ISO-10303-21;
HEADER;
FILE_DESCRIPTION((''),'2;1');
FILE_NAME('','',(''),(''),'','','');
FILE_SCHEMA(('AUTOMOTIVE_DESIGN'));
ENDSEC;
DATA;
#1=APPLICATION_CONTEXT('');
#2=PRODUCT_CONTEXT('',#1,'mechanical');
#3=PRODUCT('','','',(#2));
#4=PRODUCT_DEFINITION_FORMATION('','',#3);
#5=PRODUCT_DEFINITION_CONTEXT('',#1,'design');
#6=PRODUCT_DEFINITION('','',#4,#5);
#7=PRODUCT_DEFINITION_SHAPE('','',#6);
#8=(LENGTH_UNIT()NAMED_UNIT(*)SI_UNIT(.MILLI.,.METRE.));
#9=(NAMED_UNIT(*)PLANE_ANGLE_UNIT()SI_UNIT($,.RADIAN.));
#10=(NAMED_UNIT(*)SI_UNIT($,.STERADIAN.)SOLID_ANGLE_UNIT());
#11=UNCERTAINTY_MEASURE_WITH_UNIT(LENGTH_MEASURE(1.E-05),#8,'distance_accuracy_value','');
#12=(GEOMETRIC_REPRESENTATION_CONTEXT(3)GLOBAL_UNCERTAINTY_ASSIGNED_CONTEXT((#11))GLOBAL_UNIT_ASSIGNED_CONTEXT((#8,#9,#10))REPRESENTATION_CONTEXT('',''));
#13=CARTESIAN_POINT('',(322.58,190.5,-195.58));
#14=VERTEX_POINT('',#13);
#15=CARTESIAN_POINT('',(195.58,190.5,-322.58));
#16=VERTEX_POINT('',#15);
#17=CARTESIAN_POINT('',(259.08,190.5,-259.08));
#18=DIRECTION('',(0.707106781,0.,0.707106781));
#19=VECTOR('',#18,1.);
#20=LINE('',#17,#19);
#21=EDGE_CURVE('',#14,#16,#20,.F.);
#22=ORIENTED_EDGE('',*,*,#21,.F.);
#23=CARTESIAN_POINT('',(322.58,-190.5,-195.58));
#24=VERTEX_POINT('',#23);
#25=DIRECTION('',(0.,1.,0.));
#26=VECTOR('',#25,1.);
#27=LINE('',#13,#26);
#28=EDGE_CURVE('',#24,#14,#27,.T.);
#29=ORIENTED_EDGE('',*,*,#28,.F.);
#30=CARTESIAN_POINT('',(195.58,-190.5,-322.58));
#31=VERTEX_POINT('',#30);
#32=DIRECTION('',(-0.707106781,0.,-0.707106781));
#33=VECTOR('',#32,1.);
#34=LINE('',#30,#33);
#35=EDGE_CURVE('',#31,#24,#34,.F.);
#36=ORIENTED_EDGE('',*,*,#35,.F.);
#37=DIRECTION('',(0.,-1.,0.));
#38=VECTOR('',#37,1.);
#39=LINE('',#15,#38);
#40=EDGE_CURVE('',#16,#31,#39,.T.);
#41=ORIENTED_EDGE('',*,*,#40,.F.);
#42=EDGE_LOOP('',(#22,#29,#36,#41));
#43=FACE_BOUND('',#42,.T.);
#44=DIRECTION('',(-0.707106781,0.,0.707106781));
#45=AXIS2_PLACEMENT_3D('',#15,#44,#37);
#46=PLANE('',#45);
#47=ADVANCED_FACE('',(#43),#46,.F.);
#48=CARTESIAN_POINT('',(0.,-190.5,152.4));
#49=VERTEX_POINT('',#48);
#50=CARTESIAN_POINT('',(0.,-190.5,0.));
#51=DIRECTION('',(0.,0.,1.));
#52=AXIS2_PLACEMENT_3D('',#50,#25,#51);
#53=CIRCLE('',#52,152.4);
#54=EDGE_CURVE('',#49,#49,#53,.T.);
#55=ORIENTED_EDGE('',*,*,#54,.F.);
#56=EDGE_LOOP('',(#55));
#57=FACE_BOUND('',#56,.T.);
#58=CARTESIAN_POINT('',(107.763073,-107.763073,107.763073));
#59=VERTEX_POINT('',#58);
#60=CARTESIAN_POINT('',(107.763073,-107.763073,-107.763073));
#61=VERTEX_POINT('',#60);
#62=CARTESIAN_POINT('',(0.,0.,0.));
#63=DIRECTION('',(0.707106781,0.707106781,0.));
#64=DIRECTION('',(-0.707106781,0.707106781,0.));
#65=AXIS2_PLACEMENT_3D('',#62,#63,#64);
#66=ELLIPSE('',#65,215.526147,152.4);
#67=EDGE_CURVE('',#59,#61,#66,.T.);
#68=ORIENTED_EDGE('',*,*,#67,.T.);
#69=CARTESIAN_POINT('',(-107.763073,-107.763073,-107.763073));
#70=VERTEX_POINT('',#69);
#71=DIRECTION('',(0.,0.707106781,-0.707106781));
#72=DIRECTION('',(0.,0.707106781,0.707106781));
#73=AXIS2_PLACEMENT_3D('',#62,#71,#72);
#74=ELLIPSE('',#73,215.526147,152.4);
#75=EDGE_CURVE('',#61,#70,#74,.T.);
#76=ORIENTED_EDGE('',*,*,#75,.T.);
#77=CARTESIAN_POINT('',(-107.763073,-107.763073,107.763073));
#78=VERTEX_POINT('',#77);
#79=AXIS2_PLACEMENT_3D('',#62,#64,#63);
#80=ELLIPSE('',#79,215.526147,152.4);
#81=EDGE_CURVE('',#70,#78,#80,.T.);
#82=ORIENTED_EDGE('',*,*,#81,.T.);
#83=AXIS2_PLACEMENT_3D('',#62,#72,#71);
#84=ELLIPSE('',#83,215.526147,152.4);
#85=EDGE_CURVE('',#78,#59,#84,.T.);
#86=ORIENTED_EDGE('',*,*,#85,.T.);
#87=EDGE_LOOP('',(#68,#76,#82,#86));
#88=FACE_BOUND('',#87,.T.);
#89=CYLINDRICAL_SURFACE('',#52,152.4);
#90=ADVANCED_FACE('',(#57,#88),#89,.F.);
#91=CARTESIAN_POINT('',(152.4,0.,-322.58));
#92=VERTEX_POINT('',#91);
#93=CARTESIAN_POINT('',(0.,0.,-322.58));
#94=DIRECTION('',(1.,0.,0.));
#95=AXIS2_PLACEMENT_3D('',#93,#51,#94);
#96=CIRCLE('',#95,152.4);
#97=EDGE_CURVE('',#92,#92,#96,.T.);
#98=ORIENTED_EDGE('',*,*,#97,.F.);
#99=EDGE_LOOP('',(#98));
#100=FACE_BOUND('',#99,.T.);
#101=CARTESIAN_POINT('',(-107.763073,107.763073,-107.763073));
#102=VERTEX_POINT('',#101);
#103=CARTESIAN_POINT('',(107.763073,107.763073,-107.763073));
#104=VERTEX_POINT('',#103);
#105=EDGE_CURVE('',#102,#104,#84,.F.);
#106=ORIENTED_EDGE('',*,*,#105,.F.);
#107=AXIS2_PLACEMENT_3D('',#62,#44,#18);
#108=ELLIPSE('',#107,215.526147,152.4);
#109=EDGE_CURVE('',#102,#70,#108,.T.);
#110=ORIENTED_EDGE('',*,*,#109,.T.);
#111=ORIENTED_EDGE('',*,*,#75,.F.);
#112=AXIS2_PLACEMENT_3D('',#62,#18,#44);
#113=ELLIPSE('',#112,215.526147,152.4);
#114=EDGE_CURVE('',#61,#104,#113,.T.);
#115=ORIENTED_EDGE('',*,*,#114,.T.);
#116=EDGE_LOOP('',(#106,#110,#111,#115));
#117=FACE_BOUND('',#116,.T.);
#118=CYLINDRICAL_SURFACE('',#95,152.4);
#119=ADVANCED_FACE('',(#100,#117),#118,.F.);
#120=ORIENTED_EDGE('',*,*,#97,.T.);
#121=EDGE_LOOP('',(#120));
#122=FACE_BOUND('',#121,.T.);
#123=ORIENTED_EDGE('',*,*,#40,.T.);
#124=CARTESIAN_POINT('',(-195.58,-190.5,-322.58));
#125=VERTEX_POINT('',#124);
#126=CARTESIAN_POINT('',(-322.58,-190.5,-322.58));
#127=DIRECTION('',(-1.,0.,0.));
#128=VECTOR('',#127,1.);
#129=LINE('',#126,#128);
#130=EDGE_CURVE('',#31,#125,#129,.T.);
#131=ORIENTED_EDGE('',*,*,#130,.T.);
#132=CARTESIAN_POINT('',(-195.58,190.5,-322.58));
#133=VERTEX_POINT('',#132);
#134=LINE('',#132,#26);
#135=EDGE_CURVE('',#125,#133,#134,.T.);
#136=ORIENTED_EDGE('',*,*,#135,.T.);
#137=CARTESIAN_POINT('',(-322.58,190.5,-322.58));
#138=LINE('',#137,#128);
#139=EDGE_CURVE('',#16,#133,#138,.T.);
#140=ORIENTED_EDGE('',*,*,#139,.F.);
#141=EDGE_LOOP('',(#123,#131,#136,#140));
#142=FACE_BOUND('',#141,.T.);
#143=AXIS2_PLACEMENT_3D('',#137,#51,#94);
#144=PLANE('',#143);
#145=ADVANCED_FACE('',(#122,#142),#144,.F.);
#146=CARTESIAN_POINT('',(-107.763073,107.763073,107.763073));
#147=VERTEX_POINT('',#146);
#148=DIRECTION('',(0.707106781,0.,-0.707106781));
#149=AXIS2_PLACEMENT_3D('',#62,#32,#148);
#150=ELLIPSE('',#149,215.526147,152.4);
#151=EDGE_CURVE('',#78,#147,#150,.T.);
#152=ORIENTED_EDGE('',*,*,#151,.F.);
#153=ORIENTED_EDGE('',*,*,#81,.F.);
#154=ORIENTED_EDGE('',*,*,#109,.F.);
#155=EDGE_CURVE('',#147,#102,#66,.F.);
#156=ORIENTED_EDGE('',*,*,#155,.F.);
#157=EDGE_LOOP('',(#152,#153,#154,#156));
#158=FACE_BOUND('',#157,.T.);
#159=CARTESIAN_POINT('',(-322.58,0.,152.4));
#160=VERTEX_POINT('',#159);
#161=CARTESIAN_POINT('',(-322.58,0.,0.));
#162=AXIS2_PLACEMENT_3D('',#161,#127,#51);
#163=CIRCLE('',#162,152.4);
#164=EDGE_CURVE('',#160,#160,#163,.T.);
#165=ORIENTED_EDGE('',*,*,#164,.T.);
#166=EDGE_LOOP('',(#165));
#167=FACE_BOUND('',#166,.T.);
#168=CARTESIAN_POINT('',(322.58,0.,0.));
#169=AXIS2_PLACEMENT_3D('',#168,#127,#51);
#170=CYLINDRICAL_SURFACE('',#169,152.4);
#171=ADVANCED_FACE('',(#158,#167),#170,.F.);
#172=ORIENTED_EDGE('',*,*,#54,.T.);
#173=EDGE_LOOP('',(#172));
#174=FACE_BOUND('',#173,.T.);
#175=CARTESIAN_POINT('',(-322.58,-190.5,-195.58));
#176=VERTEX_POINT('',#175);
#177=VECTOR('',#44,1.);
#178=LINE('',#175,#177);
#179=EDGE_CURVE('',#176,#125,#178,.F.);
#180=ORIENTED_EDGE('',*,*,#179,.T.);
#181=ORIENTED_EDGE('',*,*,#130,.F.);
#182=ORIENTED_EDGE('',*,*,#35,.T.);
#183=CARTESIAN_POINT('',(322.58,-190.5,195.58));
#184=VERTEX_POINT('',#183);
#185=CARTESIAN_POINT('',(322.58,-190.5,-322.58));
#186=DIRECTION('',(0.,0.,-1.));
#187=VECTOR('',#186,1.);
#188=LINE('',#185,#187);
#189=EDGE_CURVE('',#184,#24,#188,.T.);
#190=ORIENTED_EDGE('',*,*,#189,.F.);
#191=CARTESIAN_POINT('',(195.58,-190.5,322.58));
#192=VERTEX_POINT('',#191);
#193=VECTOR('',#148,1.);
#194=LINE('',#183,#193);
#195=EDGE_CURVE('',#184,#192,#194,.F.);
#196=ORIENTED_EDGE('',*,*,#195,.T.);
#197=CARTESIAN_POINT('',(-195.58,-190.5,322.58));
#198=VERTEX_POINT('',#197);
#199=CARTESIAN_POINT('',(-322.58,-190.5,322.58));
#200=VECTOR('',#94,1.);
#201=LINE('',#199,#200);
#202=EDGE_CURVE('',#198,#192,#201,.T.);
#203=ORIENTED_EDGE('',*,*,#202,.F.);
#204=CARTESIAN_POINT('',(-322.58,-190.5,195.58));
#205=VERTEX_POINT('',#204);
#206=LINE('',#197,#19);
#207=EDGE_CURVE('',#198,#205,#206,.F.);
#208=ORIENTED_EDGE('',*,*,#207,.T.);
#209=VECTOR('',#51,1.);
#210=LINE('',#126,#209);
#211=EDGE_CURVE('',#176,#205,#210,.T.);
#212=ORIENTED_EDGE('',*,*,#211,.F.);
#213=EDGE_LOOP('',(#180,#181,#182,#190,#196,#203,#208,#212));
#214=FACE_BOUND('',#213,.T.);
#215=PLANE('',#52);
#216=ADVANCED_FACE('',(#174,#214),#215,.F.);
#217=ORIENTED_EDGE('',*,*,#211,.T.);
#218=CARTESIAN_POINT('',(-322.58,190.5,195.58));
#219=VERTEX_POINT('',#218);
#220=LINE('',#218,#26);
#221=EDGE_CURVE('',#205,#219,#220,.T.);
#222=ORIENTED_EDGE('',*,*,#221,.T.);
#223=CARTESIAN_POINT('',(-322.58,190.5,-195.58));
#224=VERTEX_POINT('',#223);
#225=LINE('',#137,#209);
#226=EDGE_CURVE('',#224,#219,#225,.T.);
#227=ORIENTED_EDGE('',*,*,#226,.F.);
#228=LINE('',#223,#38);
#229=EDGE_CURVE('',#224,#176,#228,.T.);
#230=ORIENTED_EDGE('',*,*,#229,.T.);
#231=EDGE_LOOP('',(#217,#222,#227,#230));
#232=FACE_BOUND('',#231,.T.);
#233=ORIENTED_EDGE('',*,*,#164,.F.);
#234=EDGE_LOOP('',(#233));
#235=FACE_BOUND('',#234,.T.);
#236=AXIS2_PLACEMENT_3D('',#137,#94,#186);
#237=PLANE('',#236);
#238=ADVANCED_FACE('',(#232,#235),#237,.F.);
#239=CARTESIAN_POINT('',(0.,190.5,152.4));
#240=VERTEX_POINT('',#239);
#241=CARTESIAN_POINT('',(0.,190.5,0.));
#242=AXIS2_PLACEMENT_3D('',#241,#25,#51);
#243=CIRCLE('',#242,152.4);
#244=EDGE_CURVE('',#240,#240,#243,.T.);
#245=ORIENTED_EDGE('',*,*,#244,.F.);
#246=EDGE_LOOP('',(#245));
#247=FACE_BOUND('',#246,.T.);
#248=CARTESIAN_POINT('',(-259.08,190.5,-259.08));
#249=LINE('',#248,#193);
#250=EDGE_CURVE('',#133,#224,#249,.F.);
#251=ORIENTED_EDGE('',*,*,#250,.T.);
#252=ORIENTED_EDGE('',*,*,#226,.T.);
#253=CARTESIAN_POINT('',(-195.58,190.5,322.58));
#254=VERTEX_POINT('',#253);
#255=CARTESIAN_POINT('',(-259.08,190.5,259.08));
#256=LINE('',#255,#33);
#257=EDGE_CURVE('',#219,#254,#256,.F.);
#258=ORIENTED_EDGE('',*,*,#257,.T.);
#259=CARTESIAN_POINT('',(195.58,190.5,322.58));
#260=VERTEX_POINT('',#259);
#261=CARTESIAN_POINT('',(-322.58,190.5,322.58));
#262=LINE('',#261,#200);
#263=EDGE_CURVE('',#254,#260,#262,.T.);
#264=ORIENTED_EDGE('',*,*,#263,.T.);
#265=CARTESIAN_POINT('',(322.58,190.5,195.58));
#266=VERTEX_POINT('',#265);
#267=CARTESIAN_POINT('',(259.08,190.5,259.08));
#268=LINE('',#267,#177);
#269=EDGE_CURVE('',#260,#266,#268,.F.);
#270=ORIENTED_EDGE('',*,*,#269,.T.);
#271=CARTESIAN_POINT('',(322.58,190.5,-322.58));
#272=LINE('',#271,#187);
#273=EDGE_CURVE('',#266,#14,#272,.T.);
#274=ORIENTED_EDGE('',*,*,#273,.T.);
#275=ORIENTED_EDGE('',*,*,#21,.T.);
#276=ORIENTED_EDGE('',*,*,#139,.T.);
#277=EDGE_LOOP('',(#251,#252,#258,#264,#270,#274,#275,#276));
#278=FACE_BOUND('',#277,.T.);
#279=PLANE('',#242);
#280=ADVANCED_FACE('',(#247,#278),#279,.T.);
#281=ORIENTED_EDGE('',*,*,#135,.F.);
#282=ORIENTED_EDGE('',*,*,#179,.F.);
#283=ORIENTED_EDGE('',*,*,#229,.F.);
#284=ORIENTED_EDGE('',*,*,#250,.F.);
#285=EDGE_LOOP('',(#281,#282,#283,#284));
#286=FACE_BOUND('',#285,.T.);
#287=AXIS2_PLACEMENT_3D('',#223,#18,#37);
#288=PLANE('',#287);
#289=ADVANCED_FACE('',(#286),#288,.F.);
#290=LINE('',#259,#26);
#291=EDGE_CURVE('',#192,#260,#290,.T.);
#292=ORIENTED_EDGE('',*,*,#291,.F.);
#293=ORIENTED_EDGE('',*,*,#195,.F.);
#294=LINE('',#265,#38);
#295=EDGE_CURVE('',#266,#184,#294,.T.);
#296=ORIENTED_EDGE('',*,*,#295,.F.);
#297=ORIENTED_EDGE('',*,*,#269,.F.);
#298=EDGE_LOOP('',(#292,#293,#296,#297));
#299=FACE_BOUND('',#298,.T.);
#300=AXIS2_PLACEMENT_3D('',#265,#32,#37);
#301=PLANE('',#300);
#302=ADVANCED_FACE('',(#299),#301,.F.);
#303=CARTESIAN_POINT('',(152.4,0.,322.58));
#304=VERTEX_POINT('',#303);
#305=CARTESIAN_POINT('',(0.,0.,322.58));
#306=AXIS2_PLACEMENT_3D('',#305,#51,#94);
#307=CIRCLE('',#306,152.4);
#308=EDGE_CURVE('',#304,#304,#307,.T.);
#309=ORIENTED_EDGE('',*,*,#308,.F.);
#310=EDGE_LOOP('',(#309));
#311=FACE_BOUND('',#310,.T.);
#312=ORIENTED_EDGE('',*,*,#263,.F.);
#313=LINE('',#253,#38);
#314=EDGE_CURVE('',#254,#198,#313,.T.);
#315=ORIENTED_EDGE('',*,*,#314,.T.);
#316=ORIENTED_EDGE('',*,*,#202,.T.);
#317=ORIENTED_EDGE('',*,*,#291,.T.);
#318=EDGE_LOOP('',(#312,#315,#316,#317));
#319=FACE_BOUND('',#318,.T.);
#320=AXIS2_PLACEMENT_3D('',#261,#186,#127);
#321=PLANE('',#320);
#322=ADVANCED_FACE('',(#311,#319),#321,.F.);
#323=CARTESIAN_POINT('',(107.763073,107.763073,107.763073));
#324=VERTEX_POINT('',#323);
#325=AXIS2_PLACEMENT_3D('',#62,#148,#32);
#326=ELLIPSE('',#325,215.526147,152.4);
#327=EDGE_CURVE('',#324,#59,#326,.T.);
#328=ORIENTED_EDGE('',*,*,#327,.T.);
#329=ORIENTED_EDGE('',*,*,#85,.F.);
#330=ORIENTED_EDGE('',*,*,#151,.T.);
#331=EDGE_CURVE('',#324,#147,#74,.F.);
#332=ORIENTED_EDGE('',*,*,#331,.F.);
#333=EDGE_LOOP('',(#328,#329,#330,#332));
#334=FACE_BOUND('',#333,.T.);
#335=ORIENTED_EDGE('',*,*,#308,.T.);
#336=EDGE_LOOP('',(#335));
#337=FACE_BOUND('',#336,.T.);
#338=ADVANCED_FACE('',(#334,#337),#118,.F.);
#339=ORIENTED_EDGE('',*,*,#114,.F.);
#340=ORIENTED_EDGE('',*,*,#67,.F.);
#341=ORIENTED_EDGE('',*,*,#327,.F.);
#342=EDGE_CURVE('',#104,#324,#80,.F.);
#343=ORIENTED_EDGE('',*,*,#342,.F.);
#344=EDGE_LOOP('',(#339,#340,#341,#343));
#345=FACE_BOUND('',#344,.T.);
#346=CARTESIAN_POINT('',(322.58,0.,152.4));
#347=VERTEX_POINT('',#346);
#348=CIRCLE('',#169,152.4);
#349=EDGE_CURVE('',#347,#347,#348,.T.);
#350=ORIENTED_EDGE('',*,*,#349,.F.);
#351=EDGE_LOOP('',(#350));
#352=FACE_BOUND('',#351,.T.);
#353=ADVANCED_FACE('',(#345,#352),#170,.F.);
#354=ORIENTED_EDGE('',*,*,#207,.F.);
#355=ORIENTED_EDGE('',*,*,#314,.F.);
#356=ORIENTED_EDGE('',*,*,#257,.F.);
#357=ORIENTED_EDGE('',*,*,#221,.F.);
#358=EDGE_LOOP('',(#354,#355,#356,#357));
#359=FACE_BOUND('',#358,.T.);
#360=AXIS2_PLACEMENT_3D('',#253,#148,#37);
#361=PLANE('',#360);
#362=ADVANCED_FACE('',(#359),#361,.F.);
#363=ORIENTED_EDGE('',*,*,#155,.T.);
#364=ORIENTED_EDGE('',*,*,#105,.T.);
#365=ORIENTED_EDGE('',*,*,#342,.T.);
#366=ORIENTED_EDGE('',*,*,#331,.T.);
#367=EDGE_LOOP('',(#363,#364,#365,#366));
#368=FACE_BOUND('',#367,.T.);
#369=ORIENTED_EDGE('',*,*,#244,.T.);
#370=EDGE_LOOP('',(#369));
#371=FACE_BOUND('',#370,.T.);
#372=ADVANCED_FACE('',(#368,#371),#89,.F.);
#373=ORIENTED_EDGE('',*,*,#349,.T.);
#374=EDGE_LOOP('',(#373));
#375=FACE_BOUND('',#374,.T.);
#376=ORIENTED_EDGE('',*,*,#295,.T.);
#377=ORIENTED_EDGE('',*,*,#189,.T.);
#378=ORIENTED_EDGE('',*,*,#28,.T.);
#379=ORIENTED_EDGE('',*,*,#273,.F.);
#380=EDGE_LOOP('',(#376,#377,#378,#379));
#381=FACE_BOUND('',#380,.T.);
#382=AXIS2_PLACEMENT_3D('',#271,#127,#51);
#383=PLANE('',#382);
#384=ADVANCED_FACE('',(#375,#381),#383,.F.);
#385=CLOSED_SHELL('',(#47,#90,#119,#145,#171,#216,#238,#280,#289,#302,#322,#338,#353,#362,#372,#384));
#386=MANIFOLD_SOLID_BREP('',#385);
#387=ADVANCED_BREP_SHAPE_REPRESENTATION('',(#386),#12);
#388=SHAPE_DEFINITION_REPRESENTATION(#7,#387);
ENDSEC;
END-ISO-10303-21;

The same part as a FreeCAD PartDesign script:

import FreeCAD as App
import Part
import Sketcher
Q = App.Units.Quantity


def edges_at(feature, points):
    """Names of the edges that pass closest to the given points."""
    edges = feature.Shape.Edges
    near = lambda p: min(range(len(edges)), key=lambda i: edges[i].distToShape(Part.Vertex(*p))[0])
    return sorted({f"Edge{near(p) + 1}" for p in points})


def add_polygon(sketch, points):
    """Adds a closed chain of lines whose ends are joined by coincident constraints."""
    first, n = sketch.GeometryCount, len(points)
    for a, b in zip(points, points[1:] + points[:1]):
        sketch.addGeometry(Part.LineSegment(App.Vector(*a, 0), App.Vector(*b, 0)), False)
    for i in range(n):
        sketch.addConstraint(Sketcher.Constraint("Coincident", first + i, 2, first + (i + 1) % n, 1))

doc = App.newDocument("Part")
body = doc.addObject("PartDesign::Body", "Body")

# Sketch on XZ plane
sketch1 = body.newObject("Sketcher::SketchObject", "Sketch")
sketch1.AttachmentSupport = (doc.getObject("XZ_Plane"), [""])
sketch1.MapMode = "FlatFace"
add_polygon(sketch1, [(-323, -323), (-323, 323), (323, 323), (323, -323)])  # lines 0-3
sketch1.addConstraint(Sketcher.Constraint("Vertical", 0))
sketch1.addConstraint(Sketcher.Constraint("Horizontal", 1))
sketch1.addConstraint(Sketcher.Constraint("Vertical", 2))
sketch1.addConstraint(Sketcher.Constraint("Horizontal", 3))
sketch1.addConstraint(Sketcher.Constraint("Symmetric", 0, 2, 2, 2, -1, 1))
sketch1.addConstraint(Sketcher.Constraint("Equal", 3, 0))
sketch1.addConstraint(Sketcher.Constraint("DistanceX", 1, 1, 1, 2, Q("25.4 in")))
pad1 = body.newObject("PartDesign::Pad", "Pad")
pad1.Profile = sketch1
pad1.Length = Q("15 in")
pad1.Midplane = True
doc.recompute()

chamfer = body.newObject("PartDesign::Chamfer", "Chamfer")
chamfer.Base = (pad1, edges_at(pad1, [
    (322.58, 0, 322.58),
    (-322.58, 0, 322.58),
    (-322.58, 0, -322.58),
    (322.58, 0, -322.58),
]))
chamfer.Size = Q("5 in")

# Sketch on XZ plane
sketch2 = body.newObject("Sketcher::SketchObject", "Sketch001")
sketch2.AttachmentSupport = (doc.getObject("XZ_Plane"), [""])
sketch2.MapMode = "FlatFace"
sketch2.AttachmentOffset = App.Placement(App.Vector(0, 0, -7.5 * 25.4), App.Rotation())
sketch2.addGeometry(Part.Circle(App.Vector(0, 0, 0), App.Vector(0, 0, 1), 152), False)
sketch2.addConstraint(Sketcher.Constraint("Coincident", 0, 3, -1, 1))
sketch2.addConstraint(Sketcher.Constraint("Diameter", 0, Q("12 in")))
pocket1 = body.newObject("PartDesign::Pocket", "Pocket")
pocket1.Profile = sketch2
pocket1.Type = "ThroughAll"
pocket1.Reversed = True

# Sketch on XY plane
sketch3 = body.newObject("Sketcher::SketchObject", "Sketch002")
sketch3.AttachmentSupport = (doc.getObject("XY_Plane"), [""])
sketch3.MapMode = "FlatFace"
sketch3.AttachmentOffset = App.Placement(App.Vector(0, 0, 12.7 * 25.4), App.Rotation())
sketch3.addGeometry(Part.Circle(App.Vector(0, 0, 0), App.Vector(0, 0, 1), 152), False)
sketch3.addConstraint(Sketcher.Constraint("Coincident", 0, 3, -1, 1))
sketch3.addConstraint(Sketcher.Constraint("Diameter", 0, Q("12 in")))
pocket2 = body.newObject("PartDesign::Pocket", "Pocket001")
pocket2.Profile = sketch3
pocket2.Type = "ThroughAll"
doc.recompute()

polarpattern = body.newObject("PartDesign::PolarPattern", "PolarPattern")
polarpattern.Originals = [pocket2]
polarpattern.Axis = (doc.getObject("Y_Axis"), [""])
polarpattern.Angle = 360
polarpattern.Occurrences = 4
body.Tip = polarpattern

doc.recompute()
